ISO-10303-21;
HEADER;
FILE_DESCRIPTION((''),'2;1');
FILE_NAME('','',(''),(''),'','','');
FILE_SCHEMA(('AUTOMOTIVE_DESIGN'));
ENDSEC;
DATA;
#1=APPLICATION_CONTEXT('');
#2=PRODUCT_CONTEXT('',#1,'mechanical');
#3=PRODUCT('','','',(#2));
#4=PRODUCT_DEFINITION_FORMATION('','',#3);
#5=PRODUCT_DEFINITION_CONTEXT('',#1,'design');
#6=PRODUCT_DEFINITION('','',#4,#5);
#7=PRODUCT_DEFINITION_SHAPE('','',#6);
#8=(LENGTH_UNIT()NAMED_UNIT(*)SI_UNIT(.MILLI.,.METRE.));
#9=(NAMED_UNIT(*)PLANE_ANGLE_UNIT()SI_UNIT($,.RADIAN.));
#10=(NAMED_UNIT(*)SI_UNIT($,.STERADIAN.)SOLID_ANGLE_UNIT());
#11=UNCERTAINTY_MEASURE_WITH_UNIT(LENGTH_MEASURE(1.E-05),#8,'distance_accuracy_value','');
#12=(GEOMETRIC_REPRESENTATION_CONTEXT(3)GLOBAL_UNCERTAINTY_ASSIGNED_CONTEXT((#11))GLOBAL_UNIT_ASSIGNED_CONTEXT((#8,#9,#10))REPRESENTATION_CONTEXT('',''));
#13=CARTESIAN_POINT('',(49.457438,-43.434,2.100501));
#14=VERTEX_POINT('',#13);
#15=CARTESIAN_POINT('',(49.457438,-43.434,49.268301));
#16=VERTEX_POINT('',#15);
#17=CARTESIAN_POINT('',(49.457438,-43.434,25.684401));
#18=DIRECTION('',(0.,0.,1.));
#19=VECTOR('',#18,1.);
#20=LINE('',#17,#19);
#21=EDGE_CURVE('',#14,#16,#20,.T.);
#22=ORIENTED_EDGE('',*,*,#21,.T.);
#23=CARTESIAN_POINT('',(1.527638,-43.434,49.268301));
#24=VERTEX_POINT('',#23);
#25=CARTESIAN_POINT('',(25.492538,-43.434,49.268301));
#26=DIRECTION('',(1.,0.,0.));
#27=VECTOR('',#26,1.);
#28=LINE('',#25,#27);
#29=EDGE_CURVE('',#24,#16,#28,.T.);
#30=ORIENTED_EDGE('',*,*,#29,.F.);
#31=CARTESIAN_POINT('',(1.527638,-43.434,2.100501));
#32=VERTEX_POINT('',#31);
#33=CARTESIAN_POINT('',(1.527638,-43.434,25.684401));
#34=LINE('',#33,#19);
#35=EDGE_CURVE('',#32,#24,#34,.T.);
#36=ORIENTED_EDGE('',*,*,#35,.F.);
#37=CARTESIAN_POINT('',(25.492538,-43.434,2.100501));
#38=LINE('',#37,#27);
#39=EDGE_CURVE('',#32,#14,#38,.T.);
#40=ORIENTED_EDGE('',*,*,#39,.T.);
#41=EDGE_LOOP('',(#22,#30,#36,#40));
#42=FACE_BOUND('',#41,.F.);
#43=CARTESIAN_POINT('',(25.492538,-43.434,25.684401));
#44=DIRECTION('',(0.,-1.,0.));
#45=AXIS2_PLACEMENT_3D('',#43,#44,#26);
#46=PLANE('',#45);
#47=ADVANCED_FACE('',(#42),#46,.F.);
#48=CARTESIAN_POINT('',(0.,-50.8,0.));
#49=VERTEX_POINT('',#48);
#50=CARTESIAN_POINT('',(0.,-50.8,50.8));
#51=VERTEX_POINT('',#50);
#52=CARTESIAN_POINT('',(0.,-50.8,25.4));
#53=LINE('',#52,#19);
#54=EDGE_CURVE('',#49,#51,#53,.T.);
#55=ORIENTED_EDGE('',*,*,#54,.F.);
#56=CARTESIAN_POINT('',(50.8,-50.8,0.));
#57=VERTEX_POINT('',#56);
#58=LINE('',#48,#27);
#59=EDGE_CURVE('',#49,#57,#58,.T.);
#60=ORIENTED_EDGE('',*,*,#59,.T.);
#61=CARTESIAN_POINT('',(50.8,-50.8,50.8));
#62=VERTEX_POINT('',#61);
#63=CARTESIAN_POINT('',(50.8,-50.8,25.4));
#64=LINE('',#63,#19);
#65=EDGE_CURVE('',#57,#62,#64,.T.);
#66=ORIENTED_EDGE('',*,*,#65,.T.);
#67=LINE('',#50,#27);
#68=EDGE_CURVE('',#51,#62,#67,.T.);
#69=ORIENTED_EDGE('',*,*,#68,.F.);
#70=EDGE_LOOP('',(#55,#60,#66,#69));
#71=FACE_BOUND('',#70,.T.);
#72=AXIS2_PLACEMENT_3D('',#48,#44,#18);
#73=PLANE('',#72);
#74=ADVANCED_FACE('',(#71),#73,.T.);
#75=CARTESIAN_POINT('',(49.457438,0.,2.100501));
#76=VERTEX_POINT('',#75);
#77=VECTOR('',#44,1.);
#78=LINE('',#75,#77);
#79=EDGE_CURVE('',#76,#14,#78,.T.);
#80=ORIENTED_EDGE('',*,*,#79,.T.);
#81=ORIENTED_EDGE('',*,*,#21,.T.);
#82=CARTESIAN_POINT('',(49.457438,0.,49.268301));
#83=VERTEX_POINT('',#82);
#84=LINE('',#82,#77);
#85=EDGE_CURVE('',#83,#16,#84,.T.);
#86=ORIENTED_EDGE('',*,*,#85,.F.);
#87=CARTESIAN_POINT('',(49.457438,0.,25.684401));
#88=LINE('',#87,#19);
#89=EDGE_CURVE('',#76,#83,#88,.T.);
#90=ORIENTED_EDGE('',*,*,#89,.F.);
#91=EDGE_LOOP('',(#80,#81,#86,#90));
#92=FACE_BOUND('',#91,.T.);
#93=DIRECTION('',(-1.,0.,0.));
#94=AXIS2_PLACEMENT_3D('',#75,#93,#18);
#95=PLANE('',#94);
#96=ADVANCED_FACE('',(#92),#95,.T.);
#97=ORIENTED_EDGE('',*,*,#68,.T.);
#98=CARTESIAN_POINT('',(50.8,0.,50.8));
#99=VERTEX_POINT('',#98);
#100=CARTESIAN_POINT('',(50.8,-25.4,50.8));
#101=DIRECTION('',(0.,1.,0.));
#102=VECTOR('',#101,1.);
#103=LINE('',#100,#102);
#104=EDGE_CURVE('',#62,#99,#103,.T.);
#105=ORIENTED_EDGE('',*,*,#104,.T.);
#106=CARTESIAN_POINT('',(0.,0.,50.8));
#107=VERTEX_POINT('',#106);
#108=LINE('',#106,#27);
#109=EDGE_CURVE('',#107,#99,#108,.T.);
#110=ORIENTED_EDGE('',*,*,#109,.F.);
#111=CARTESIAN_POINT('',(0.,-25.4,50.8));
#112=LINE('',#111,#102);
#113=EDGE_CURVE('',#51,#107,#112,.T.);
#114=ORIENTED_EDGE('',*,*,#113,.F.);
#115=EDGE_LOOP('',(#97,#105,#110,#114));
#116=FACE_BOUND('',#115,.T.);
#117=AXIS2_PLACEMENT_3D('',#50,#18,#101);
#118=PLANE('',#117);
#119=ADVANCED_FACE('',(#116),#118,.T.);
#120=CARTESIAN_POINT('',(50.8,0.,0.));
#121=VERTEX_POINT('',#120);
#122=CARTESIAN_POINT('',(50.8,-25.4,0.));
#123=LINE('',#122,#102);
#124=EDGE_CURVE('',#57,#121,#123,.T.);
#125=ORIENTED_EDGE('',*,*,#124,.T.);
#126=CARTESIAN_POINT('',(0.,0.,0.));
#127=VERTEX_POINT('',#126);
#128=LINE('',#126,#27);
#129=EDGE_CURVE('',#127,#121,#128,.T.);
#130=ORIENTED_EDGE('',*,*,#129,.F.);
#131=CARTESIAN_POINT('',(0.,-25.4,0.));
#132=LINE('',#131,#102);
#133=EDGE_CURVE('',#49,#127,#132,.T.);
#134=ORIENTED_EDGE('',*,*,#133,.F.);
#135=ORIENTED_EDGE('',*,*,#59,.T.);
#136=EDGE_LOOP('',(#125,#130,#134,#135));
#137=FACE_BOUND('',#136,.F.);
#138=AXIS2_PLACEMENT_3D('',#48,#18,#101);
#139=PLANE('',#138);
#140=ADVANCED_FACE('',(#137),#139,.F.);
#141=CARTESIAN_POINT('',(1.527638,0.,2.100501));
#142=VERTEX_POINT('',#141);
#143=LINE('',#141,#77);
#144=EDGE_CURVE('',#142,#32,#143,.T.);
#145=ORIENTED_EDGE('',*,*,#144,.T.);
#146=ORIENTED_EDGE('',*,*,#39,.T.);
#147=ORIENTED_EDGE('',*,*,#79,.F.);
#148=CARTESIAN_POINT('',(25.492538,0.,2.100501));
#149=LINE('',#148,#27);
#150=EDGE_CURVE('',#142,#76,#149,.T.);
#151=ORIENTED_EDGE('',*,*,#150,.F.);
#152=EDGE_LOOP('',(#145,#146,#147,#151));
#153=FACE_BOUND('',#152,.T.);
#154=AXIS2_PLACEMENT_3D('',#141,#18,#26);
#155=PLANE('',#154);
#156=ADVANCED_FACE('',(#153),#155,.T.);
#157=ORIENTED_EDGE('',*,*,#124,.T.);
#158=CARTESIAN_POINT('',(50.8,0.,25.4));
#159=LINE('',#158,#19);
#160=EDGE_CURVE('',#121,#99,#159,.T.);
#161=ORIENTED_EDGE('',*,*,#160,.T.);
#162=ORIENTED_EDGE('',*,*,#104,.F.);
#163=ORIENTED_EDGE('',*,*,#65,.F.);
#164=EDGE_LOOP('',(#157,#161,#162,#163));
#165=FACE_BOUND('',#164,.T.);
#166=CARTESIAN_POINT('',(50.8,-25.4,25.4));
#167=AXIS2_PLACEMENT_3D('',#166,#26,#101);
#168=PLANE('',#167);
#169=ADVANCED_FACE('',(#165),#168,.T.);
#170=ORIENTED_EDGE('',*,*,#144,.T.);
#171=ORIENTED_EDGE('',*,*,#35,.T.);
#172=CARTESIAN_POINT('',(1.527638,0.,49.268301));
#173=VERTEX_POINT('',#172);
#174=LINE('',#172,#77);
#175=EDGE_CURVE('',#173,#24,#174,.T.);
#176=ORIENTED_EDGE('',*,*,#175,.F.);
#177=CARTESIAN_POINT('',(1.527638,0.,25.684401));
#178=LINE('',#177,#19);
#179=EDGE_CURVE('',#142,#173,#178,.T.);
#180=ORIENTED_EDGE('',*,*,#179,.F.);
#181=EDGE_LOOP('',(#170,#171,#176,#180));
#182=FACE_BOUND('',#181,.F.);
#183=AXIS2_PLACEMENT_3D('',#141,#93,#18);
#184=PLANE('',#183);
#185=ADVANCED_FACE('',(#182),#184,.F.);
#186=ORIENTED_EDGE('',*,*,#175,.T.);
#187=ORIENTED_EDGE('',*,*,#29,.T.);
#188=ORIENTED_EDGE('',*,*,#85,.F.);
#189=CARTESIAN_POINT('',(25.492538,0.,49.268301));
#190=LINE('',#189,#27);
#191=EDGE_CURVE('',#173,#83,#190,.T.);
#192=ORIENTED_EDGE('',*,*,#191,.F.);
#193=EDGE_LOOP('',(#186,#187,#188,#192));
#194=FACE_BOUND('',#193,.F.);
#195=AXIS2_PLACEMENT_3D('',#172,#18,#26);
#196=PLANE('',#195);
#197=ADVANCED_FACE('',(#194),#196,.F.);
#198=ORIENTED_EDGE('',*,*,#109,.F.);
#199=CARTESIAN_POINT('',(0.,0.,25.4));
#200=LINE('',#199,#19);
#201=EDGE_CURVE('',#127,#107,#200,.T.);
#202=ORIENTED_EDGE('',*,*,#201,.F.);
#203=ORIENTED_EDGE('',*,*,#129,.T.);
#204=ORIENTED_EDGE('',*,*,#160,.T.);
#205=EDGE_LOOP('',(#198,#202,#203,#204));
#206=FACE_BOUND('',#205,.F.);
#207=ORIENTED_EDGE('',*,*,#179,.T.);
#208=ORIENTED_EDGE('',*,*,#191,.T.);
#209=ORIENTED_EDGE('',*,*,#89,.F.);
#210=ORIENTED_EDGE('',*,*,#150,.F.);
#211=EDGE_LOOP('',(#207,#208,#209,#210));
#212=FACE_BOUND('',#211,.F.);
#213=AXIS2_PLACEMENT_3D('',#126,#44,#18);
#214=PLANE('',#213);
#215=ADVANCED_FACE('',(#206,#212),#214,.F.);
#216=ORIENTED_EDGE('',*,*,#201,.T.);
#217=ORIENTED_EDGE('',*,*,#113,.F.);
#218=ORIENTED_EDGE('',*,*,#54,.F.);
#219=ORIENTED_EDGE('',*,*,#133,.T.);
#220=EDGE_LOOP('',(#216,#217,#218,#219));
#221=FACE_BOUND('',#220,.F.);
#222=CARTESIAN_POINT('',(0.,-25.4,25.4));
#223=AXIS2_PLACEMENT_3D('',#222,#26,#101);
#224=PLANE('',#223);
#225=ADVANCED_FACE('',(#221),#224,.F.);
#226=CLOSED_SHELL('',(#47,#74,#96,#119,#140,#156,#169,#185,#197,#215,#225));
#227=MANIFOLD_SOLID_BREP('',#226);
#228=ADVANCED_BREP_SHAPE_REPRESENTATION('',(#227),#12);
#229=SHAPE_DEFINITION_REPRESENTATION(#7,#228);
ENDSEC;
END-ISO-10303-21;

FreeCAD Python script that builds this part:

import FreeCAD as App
import Part
import Sketcher
from FreeCAD import Vector
Q = App.Units.Quantity

doc = App.newDocument("Part")
body = doc.addObject("PartDesign::Body", "Body")

sketch1 = body.newObject("Sketcher::SketchObject", "Sketch")
sketch1.AttachmentSupport = (doc.getObject("YZ_Plane"), [""])
sketch1.MapMode = "FlatFace"
sketch1.addGeometry([
    Part.LineSegment(Vector(-51, 51, 0), Vector(-51, 0, 0)),
    Part.LineSegment(Vector(-51, 0, 0), Vector(0, 0, 0)),
    Part.LineSegment(Vector(0, 0, 0), Vector(0, 51, 0)),
    Part.LineSegment(Vector(0, 51, 0), Vector(-51, 51, 0)),
], False)
sketch1.addConstraint([
    Sketcher.Constraint("Coincident", 0, 2, 1, 1),
    Sketcher.Constraint("Coincident", 1, 2, 2, 1),
    Sketcher.Constraint("Coincident", 2, 2, 3, 1),
    Sketcher.Constraint("Coincident", 3, 2, 0, 1),
    Sketcher.Constraint("Vertical", 0),
    Sketcher.Constraint("Horizontal", 1),
    Sketcher.Constraint("Vertical", 2),
    Sketcher.Constraint("Horizontal", 3),
    Sketcher.Constraint("Coincident", 1, 2, -1, 1),
    Sketcher.Constraint("Equal", 3, 0),
    Sketcher.Constraint("DistanceX", 1, 1, 1, 2, Q("2 in")),
])
pad1 = body.newObject("PartDesign::Pad", "Pad")
pad1.Profile = sketch1
pad1.Length = Q("2 in")

sketch2 = body.newObject("Sketcher::SketchObject", "Sketch001")
sketch2.AttachmentSupport = (doc.getObject("XZ_Plane"), [""])
sketch2.MapMode = "FlatFace"
sketch2.addGeometry([
    Part.LineSegment(Vector(2, 49, 0), Vector(2, 2, 0)),
    Part.LineSegment(Vector(2, 2, 0), Vector(49, 2, 0)),
    Part.LineSegment(Vector(49, 2, 0), Vector(49, 49, 0)),
    Part.LineSegment(Vector(49, 49, 0), Vector(2, 49, 0)),
], False)
sketch2.addConstraint([
    Sketcher.Constraint("Coincident", 0, 2, 1, 1),
    Sketcher.Constraint("Coincident", 1, 2, 2, 1),
    Sketcher.Constraint("Coincident", 2, 2, 3, 1),
    Sketcher.Constraint("Coincident", 3, 2, 0, 1),
    Sketcher.Constraint("Vertical", 0),
    Sketcher.Constraint("Horizontal", 1),
    Sketcher.Constraint("Vertical", 2),
    Sketcher.Constraint("Horizontal", 3),
    Sketcher.Constraint("DistanceX", 1, 1, 1, 2, Q("1.887 in")),
    Sketcher.Constraint("DistanceY", 0, 2, 0, 1, Q("1.857 in")),
    Sketcher.Constraint("DistanceY", -1, 1, 0, 2, Q("2.100501 mm")),
    Sketcher.Constraint("DistanceX", -1, 1, 1, 2, Q("49.457438 mm")),
])
pocket1 = body.newObject("PartDesign::Pocket", "Pocket")
pocket1.Profile = sketch2
pocket1.Length = Q("1.71 in")
pocket1.Reversed = True

doc.recompute()
